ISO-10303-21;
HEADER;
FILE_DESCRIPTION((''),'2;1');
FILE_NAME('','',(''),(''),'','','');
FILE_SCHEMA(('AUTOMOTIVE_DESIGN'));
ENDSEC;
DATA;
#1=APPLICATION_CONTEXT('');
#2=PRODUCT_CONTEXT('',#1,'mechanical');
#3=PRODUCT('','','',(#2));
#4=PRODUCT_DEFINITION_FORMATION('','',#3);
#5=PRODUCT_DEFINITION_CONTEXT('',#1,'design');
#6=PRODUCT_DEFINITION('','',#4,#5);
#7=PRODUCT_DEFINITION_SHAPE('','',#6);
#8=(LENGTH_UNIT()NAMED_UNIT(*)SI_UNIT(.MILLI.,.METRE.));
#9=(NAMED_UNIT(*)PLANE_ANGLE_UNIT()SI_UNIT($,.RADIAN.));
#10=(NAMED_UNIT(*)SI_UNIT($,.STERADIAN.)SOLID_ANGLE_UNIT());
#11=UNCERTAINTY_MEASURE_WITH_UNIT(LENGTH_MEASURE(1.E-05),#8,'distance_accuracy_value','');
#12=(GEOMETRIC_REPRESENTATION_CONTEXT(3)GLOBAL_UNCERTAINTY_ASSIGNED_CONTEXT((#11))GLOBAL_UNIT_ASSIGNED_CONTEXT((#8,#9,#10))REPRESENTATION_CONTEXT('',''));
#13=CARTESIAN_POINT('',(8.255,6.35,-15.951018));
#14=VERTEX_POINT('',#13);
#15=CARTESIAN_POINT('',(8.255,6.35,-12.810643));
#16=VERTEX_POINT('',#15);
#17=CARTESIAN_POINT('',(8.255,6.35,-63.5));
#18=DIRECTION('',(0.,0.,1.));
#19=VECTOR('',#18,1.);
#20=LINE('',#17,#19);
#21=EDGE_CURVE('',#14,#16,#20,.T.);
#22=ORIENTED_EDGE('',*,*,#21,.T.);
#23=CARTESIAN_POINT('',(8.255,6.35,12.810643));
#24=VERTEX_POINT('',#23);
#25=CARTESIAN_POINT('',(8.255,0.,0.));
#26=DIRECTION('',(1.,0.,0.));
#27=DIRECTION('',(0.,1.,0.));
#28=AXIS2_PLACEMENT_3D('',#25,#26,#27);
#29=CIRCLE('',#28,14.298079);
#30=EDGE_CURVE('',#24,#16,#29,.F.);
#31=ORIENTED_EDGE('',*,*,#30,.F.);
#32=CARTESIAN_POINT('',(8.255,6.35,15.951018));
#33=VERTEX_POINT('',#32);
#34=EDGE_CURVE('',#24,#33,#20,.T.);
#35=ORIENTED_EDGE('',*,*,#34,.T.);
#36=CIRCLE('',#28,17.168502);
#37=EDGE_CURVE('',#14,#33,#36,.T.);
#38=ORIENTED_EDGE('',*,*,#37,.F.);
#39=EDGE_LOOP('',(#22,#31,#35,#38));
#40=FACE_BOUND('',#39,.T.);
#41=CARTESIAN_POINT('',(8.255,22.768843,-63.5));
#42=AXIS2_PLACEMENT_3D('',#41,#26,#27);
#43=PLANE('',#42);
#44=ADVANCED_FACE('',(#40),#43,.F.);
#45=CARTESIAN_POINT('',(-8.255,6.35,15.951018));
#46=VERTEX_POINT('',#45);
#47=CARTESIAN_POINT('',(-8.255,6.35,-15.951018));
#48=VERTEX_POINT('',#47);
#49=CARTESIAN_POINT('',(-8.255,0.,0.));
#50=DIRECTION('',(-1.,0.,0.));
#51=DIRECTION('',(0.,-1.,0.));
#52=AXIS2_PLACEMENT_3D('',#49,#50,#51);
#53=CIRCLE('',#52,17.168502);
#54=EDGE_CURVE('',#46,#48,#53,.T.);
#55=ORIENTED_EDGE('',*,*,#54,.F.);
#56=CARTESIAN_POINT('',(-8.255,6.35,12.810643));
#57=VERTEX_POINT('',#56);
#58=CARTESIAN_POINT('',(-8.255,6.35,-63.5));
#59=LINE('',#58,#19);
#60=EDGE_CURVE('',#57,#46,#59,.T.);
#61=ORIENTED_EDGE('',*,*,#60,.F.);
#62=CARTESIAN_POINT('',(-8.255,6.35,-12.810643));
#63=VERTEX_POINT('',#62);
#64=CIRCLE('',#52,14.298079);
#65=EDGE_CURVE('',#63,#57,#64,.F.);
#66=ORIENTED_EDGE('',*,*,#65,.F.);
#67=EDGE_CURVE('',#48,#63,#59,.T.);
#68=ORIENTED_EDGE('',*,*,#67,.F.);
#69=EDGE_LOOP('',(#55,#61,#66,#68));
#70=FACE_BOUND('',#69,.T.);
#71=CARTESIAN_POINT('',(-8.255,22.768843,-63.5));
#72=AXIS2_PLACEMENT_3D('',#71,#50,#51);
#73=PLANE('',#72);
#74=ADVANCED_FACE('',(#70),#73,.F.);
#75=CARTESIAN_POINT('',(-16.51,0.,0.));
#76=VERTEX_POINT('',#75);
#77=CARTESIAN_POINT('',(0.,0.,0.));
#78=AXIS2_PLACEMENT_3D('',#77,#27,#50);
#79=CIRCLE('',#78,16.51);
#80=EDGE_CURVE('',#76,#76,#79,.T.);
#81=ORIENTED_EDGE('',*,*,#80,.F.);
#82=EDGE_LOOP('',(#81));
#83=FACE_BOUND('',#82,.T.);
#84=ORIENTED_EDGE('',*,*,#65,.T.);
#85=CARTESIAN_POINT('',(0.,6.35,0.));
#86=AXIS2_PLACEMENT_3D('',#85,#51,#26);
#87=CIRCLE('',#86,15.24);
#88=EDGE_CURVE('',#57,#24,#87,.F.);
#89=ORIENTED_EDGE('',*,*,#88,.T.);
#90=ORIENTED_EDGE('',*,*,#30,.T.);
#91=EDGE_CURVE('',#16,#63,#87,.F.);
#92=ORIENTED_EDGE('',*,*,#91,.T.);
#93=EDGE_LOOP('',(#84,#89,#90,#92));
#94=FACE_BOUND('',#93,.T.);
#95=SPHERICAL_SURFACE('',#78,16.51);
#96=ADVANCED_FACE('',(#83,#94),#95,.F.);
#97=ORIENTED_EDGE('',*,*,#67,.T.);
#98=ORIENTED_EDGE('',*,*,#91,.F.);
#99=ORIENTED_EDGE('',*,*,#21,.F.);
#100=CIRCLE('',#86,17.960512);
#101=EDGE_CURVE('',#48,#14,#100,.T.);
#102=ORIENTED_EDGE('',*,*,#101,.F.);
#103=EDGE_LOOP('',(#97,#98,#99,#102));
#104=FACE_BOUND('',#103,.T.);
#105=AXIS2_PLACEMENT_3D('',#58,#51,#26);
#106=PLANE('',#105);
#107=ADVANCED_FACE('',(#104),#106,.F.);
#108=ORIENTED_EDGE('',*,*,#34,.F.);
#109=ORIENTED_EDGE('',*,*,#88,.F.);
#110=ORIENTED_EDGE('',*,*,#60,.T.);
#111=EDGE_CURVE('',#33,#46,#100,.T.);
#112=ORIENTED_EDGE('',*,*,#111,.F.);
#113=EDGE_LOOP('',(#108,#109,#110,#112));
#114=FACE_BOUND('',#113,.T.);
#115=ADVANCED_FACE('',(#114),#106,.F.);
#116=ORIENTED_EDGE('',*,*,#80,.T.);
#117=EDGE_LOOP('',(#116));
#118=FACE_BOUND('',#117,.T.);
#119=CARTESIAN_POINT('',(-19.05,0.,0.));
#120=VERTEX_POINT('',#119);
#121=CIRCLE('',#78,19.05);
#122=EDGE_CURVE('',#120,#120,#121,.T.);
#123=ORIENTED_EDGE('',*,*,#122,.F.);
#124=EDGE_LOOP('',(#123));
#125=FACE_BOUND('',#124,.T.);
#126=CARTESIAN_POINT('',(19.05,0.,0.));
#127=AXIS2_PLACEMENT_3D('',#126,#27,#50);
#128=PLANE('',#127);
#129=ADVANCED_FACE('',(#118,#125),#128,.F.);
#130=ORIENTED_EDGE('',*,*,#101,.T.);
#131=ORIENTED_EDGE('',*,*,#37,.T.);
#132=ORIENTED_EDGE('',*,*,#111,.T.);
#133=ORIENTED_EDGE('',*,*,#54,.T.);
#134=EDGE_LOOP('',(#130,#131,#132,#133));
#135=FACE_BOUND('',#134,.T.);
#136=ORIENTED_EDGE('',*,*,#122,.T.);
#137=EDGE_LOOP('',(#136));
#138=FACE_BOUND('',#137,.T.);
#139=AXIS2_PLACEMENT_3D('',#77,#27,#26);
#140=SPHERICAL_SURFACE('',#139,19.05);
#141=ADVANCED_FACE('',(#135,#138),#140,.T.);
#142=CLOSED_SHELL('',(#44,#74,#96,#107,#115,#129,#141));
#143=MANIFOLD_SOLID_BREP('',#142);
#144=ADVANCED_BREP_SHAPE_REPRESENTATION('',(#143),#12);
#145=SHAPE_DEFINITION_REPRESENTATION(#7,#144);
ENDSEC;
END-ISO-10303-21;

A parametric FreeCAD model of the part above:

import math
import FreeCAD as App
import Part
import Sketcher
Q = App.Units.Quantity


def add_polygon(sketch, points):
    """Adds a closed chain of lines whose ends are joined by coincident constraints."""
    first, n = sketch.GeometryCount, len(points)
    for a, b in zip(points, points[1:] + points[:1]):
        sketch.addGeometry(Part.LineSegment(App.Vector(*a, 0), App.Vector(*b, 0)), False)
    for i in range(n):
        sketch.addConstraint(Sketcher.Constraint("Coincident", first + i, 2, first + (i + 1) % n, 1))

doc = App.newDocument("Part")
params = doc.addObject("Spreadsheet::Sheet", "Params")
for row, (alias, value) in enumerate([
    ("sketch1_radius", "0.75 in"),
    ("sketch1_radius2", "0.65 in"),
    ("revolution_angle", "360 deg"),
    ("sketch2_width", "0.65 in"),
    ("pocket1_length", "5 in"),
], start=1):
    params.set(f"A{row}", alias)
    params.set(f"B{row}", "=" + value)
    params.setAlias(f"B{row}", alias)

body = doc.addObject("PartDesign::Body", "Body")

sketch1 = doc.addObject("Sketcher::SketchObject", "Sketch")
body.addObject(sketch1)
sketch1.AttachmentSupport = (doc.XY_Plane, [""])
sketch1.MapMode = "FlatFace"
sketch1.addGeometry(Part.LineSegment(App.Vector(16.5, 0, 0), App.Vector(19.1, 0, 0)), False)
sketch1.addGeometry(Part.ArcOfCircle(Part.Circle(App.Vector(0, 0, 0), App.Vector(0, 0, 1), 19), math.radians(0), math.radians(90)), False)
sketch1.addGeometry(Part.LineSegment(App.Vector(0, 19.1, 0), App.Vector(0, 16.5, 0)), False)
sketch1.addGeometry(Part.ArcOfCircle(Part.Circle(App.Vector(0, 0, 0), App.Vector(0, 0, 1), 16.5), math.radians(0), math.radians(90)), False)
sketch1.addConstraint(Sketcher.Constraint("Coincident", 0, 2, 1, 1))
sketch1.addConstraint(Sketcher.Constraint("Coincident", 1, 2, 2, 1))
sketch1.addConstraint(Sketcher.Constraint("Coincident", 2, 2, 3, 2))
sketch1.addConstraint(Sketcher.Constraint("Coincident", 3, 1, 0, 1))
sketch1.addConstraint(Sketcher.Constraint("Horizontal", 0))
sketch1.addConstraint(Sketcher.Constraint("Vertical", 2))
sketch1.addConstraint(Sketcher.Constraint("Coincident", 1, 3, -1, 1))
sketch1.addConstraint(Sketcher.Constraint("Coincident", 3, 3, -1, 1))
sketch1.addConstraint(Sketcher.Constraint("PointOnObject", 0, 2, -1))
sketch1.addConstraint(Sketcher.Constraint("PointOnObject", 1, 2, -2))
sketch1.addConstraint(Sketcher.Constraint("Radius", 1, Q("0.75 in")))
sketch1.addConstraint(Sketcher.Constraint("Radius", 3, Q("0.65 in")))
sketch1.setExpression("Constraints[10]", "Params.sketch1_radius")
sketch1.setExpression("Constraints[11]", "Params.sketch1_radius2")
revolution = doc.addObject("PartDesign::Revolution", "Revolution")
body.addObject(revolution)
revolution.Profile = sketch1
revolution.ReferenceAxis = (sketch1, ["V_Axis"])
revolution.setExpression("Angle", "Params.revolution_angle")

sketch2 = doc.addObject("Sketcher::SketchObject", "Sketch001")
body.addObject(sketch2)
sketch2.AttachmentSupport = (doc.XY_Plane, [""])
sketch2.MapMode = "FlatFace"
add_polygon(sketch2, [(-8, 23), (-8, 6), (8, 6), (8, 23)])
sketch2.addConstraint(Sketcher.Constraint("Vertical", 0))
sketch2.addConstraint(Sketcher.Constraint("Horizontal", 1))
sketch2.addConstraint(Sketcher.Constraint("Vertical", 2))
sketch2.addConstraint(Sketcher.Constraint("Horizontal", 3))
sketch2.addConstraint(Sketcher.Constraint("DistanceX", 1, 1, 1, 2, Q("0.65 in")))
sketch2.addConstraint(Sketcher.Constraint("DistanceY", -1, 1, 0, 2, Q("0.25 in")))
sketch2.addConstraint(Sketcher.Constraint("DistanceX", 0, 2, -1, 1, Q("0.325 in")))
sketch2.addConstraint(Sketcher.Constraint("DistanceY", 0, 2, 0, 1, Q("16.418843 mm")))
sketch2.setExpression("Constraints[8]", "Params.sketch2_width")
pocket1 = doc.addObject("PartDesign::Pocket", "Pocket")
body.addObject(pocket1)
pocket1.Profile = sketch2
pocket1.setExpression("Length", "Params.pocket1_length")
pocket1.Midplane = True

doc.recompute()
